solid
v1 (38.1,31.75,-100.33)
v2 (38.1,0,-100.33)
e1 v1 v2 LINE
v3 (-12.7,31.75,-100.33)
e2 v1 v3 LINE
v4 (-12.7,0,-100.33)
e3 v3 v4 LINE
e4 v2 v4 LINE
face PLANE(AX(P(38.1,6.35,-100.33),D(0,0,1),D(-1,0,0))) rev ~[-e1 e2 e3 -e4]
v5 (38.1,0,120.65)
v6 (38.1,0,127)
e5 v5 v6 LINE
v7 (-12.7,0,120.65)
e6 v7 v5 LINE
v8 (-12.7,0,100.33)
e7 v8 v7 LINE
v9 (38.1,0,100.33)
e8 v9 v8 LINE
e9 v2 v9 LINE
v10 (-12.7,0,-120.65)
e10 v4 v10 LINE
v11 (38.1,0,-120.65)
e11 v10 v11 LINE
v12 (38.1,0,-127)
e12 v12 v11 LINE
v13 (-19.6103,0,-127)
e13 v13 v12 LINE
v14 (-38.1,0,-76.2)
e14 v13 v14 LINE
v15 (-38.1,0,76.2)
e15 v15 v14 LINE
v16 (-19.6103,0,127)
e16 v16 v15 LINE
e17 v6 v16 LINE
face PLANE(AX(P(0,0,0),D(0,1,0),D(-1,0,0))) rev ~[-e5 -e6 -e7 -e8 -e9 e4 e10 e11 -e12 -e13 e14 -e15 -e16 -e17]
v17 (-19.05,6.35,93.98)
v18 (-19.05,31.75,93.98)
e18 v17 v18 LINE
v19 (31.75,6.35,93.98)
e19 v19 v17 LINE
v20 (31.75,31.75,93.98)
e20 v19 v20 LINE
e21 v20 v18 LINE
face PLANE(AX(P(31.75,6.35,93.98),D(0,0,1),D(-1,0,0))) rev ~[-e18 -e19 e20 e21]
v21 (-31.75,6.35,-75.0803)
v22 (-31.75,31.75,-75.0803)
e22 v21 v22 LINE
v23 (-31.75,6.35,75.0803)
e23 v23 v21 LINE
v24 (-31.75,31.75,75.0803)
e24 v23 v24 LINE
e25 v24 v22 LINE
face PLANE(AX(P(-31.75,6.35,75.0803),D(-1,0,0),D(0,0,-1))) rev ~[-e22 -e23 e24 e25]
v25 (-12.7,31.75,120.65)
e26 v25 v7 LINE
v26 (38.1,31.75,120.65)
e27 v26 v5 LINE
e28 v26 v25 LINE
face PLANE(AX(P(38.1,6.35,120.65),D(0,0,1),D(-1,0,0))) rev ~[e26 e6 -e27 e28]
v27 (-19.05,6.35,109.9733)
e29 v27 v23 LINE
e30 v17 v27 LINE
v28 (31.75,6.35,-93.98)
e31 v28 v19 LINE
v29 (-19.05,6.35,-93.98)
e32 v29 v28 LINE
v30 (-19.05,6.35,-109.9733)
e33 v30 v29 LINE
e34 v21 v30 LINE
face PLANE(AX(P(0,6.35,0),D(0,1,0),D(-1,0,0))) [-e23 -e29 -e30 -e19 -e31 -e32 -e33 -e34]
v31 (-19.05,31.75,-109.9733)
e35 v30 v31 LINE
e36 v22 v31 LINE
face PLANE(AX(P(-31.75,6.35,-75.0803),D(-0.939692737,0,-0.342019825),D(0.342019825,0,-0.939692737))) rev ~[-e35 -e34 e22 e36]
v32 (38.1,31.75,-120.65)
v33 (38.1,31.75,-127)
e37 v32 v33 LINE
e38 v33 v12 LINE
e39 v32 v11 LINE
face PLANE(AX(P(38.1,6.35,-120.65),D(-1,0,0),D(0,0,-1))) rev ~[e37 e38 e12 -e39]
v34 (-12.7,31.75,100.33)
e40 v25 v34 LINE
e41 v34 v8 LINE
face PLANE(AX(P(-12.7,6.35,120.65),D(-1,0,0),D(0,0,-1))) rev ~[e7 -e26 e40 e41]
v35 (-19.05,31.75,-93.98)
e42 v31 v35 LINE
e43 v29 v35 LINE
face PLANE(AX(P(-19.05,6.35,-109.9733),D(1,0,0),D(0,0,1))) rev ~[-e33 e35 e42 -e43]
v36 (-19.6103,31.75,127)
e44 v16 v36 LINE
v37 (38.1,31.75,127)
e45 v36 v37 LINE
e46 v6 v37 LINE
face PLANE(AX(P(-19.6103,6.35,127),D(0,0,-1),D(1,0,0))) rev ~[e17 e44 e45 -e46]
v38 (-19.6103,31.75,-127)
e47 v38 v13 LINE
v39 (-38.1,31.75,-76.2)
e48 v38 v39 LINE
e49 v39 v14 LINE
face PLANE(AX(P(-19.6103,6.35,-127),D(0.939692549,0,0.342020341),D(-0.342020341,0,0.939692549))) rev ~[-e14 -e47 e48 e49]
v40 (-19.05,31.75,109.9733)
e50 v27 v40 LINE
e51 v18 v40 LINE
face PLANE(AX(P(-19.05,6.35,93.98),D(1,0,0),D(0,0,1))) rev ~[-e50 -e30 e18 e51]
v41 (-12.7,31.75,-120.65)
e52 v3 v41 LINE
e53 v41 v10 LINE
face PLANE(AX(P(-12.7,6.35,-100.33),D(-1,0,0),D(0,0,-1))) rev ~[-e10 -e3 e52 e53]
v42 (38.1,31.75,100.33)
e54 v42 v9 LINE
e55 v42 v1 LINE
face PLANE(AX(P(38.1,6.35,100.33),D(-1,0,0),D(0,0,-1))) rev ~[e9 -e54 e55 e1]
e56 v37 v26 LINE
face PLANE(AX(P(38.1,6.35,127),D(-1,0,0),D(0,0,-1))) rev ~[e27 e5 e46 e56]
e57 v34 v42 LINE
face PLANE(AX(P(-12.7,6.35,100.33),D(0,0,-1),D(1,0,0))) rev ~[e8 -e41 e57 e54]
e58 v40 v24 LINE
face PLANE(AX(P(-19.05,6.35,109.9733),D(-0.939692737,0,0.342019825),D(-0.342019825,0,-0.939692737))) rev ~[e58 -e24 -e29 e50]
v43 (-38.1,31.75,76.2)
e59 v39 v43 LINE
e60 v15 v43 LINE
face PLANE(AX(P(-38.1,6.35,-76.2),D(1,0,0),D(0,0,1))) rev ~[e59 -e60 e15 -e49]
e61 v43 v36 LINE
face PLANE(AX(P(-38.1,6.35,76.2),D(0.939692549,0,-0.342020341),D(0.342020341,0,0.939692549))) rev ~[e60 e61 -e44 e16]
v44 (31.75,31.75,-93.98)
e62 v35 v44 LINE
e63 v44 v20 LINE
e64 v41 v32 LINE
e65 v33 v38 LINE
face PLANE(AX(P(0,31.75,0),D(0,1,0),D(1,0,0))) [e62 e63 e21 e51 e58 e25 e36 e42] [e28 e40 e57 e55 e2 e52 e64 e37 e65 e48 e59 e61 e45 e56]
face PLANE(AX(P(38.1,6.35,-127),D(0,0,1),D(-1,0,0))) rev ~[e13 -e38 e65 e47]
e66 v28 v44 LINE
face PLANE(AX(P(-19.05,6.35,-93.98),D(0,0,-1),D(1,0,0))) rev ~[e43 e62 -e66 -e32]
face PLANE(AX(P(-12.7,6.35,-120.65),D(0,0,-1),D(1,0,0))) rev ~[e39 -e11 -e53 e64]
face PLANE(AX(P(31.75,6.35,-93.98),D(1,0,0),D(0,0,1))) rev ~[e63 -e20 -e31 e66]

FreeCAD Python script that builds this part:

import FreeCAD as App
import Part
import Sketcher
Q = App.Units.Quantity


def add_polygon(sketch, points):
    """Adds a closed chain of lines whose ends are joined by coincident constraints."""
    first, n = sketch.GeometryCount, len(points)
    for a, b in zip(points, points[1:] + points[:1]):
        sketch.addGeometry(Part.LineSegment(App.Vector(*a, 0), App.Vector(*b, 0)), False)
    for i in range(n):
        sketch.addConstraint(Sketcher.Constraint("Coincident", first + i, 2, first + (i + 1) % n, 1))

doc = App.newDocument("Part")
body = doc.addObject("PartDesign::Body", "Body")

sketch1 = doc.addObject("Sketcher::SketchObject", "Sketch")
body.addObject(sketch1)
sketch1.AttachmentSupport = (doc.XZ_Plane, [""])
sketch1.MapMode = "FlatFace"
add_polygon(sketch1, [(-19.6103, 127), (38.1, 127), (38.1, 120.65), (-12.7, 120.65), (-12.7, 100.33), (38.1, 100.33), (38.1, -100.33), (-12.7, -100.33), (-12.7, -120.65), (38.1, -120.65), (38.1, -127), (-19.6103, -127), (-38.1, -76.2), (-38.1, 76.2)])
sketch1.addConstraint(Sketcher.Constraint("Horizontal", 0))
sketch1.addConstraint(Sketcher.Constraint("Vertical", 1))
sketch1.addConstraint(Sketcher.Constraint("Horizontal", 2))
sketch1.addConstraint(Sketcher.Constraint("Vertical", 3))
sketch1.addConstraint(Sketcher.Constraint("Horizontal", 4))
sketch1.addConstraint(Sketcher.Constraint("Vertical", 5))
sketch1.addConstraint(Sketcher.Constraint("Horizontal", 6))
sketch1.addConstraint(Sketcher.Constraint("Vertical", 7))
sketch1.addConstraint(Sketcher.Constraint("Horizontal", 8))
sketch1.addConstraint(Sketcher.Constraint("Vertical", 9))
sketch1.addConstraint(Sketcher.Constraint("Horizontal", 10))
sketch1.addConstraint(Sketcher.Constraint("Vertical", 12))
sketch1.addConstraint(Sketcher.Constraint("Symmetric", 3, 2, 6, 2, -1))
sketch1.addConstraint(Sketcher.Constraint("Symmetric", 1, 2, 8, 2, -1))
sketch1.addConstraint(Sketcher.Constraint("Symmetric", 10, 2, 13, 2, -1))
sketch1.addConstraint(Sketcher.Constraint("Vertical", 1, 2, 4, 2))
sketch1.addConstraint(Sketcher.Constraint("Equal", 11, 13))
sketch1.addConstraint(Sketcher.Constraint("DistanceX", 2, 2, 2, 1, Q("2 in")))
sketch1.addConstraint(Sketcher.Constraint("DistanceY", 3, 2, 3, 1, Q("0.8 in")))
sketch1.addConstraint(Sketcher.Constraint("DistanceY", 11, 2, -1, 1, Q("3 in")))
sketch1.addConstraint(Sketcher.Constraint("Angle", 13, Q("70 deg")))
sketch1.addConstraint(Sketcher.Constraint("DistanceY", 10, 2, 11, 2, Q("2 in")))
sketch1.addConstraint(Sketcher.Constraint("DistanceX", 11, 2, 5, 2, Q("3 in")))
sketch1.addConstraint(Sketcher.Constraint("DistanceY", 1, 2, 1, 1, Q("0.25 in")))
sketch1.addConstraint(Sketcher.Constraint("DistanceX", -1, 1, 0, 2, Q("1.5 in")))
pad1 = doc.addObject("PartDesign::Pad", "Pad")
body.addObject(pad1)
pad1.Profile = sketch1
pad1.Length = Q("0.25 in")
pad1.Reversed = True

sketch2 = doc.addObject("Sketcher::SketchObject", "Sketch001")
body.addObject(sketch2)
sketch2.AttachmentSupport = (doc.XZ_Plane, [""])
sketch2.MapMode = "FlatFace"
sketch2.AttachmentOffset = App.Placement(App.Vector(0, 0, -0.25 * 25.4), App.Rotation())
add_polygon(sketch2, [(-38.1, -76.2), (-38.1, 76.2), (-19.6103, 127), (38.1, 127), (38.1, 120.65), (-12.7, 120.65), (-12.7, 100.33), (38.1, 100.33), (38.1, -100.33), (-12.7, -100.33), (-12.7, -120.65), (38.1, -120.65), (38.1, -127), (-19.6103, -127)])
add_polygon(sketch2, [(-19.05, 93.98), (-19.05, 109.9733), (-31.75, 75.0803), (-31.75, -75.0803), (-19.05, -109.9733), (-19.05, -93.98), (31.75, -93.98), (31.75, 93.98)])
sketch2.addConstraint(Sketcher.Constraint("Vertical", 0))
sketch2.addConstraint(Sketcher.Constraint("Horizontal", 2))
sketch2.addConstraint(Sketcher.Constraint("Vertical", 3))
sketch2.addConstraint(Sketcher.Constraint("Horizontal", 4))
sketch2.addConstraint(Sketcher.Constraint("Vertical", 5))
sketch2.addConstraint(Sketcher.Constraint("Horizontal", 6))
sketch2.addConstraint(Sketcher.Constraint("Vertical", 7))
sketch2.addConstraint(Sketcher.Constraint("Horizontal", 8))
sketch2.addConstraint(Sketcher.Constraint("Vertical", 9))
sketch2.addConstraint(Sketcher.Constraint("Horizontal", 10))
sketch2.addConstraint(Sketcher.Constraint("Vertical", 11))
sketch2.addConstraint(Sketcher.Constraint("Horizontal", 12))
sketch2.addConstraint(Sketcher.Constraint("Vertical", 14))
sketch2.addConstraint(Sketcher.Constraint("Vertical", 16))
sketch2.addConstraint(Sketcher.Constraint("Vertical", 18))
sketch2.addConstraint(Sketcher.Constraint("Horizontal", 19))
sketch2.addConstraint(Sketcher.Constraint("Vertical", 20))
sketch2.addConstraint(Sketcher.Constraint("Horizontal", 21))
sketch2.addConstraint(Sketcher.Constraint("Symmetric", 5, 2, 8, 2, -1))
sketch2.addConstraint(Sketcher.Constraint("Symmetric", 3, 2, 10, 2, -1))
sketch2.addConstraint(Sketcher.Constraint("Symmetric", 1, 2, 12, 2, -1))
sketch2.addConstraint(Sketcher.Constraint("Symmetric", 14, 2, 17, 2, -1))
sketch2.addConstraint(Sketcher.Constraint("Parallel", 1, 15))
sketch2.addConstraint(Sketcher.Constraint("Parallel", 13, 17))
sketch2.addConstraint(Sketcher.Constraint("Vertical", 3, 2, 6, 2))
sketch2.addConstraint(Sketcher.Constraint("Equal", 10, 19))
sketch2.addConstraint(Sketcher.Constraint("Equal", 14, 18))
sketch2.addConstraint(Sketcher.Constraint("Equal", 1, 13))
sketch2.addConstraint(Sketcher.Constraint("DistanceY", 3, 2, 3, 1, Q("0.25 in")))
sketch2.addConstraint(Sketcher.Constraint("DistanceX", 4, 2, 4, 1, Q("2 in")))
sketch2.addConstraint(Sketcher.Constraint("DistanceY", 0, 1, 0, 2, Q("6 in")))
sketch2.addConstraint(Sketcher.Constraint("DistanceX", 14, 2, 5, 2, Q("0.25 in")))
sketch2.addConstraint(Sketcher.Constraint("DistanceX", 0, 2, 15, 2, Q("0.25 in")))
sketch2.addConstraint(Sketcher.Constraint("DistanceY", 8, 2, 18, 2, Q("0.25 in")))
sketch2.addConstraint(Sketcher.Constraint("DistanceY", 5, 2, 5, 1, Q("0.8 in")))
sketch2.addConstraint(Sketcher.Constraint("DistanceY", 7, 2, 7, 1, Q("7.9 in")))
sketch2.addConstraint(Sketcher.Constraint("Angle", 1, Q("70 deg")))
sketch2.addConstraint(Sketcher.Constraint("DistanceX", 0, 2, 2, 2, Q("3 in")))
sketch2.addConstraint(Sketcher.Constraint("DistanceX", 0, 2, -1, 1, Q("1.5 in")))
sketch2.addConstraint(Sketcher.Constraint("DistanceY", 14, 1, 14, 2, 15.9933))
pad2 = doc.addObject("PartDesign::Pad", "Pad001")
body.addObject(pad2)
pad2.Profile = sketch2
pad2.Length = Q("1 in")
pad2.Reversed = True

doc.recompute()
